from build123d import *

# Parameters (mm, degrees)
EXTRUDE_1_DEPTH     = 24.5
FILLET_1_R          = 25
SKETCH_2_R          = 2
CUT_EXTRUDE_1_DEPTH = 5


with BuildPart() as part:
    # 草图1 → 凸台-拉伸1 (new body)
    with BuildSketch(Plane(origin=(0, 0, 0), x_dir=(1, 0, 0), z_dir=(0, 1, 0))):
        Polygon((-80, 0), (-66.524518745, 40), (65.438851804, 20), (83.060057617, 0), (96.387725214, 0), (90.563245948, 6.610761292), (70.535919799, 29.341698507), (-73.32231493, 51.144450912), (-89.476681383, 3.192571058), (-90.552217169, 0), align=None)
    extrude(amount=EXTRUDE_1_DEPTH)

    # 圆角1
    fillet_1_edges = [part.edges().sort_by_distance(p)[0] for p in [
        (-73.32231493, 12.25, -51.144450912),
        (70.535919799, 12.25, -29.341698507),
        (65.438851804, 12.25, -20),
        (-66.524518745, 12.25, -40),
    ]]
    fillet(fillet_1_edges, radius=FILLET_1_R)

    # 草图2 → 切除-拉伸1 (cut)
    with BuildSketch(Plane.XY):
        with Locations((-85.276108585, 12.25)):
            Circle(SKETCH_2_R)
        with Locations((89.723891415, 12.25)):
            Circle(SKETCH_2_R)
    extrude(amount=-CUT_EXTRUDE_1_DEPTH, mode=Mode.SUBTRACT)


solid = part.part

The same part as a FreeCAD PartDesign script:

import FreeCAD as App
import Part
import Sketcher


def edges_at(feature, points):
    """Names of the edges that pass closest to the given points."""
    edges = feature.Shape.Edges
    near = lambda p: min(range(len(edges)), key=lambda i: edges[i].distToShape(Part.Vertex(*p))[0])
    return sorted({f"Edge{near(p) + 1}" for p in points})

doc = App.newDocument("Part")
body = doc.addObject("PartDesign::Body", "Body")

sketch1 = body.newObject("Sketcher::SketchObject", "Sketch")
sketch1.AttachmentSupport = (doc.getObject("XZ_Plane"), [""])
sketch1.MapMode = "FlatFace"
sketch1.addGeometry(Part.LineSegment(App.Vector(-80, 0, 0), App.Vector(-66.5, -40, 0)), False)
sketch1.addGeometry(Part.LineSegment(App.Vector(-66.5, -40, 0), App.Vector(65.4, -20, 0)), False)
sketch1.addGeometry(Part.LineSegment(App.Vector(65.4, -20, 0), App.Vector(83.1, 0, 0)), False)
sketch1.addGeometry(Part.LineSegment(App.Vector(83.1, 0, 0), App.Vector(96.4, 0, 0)), False)
sketch1.addGeometry(Part.LineSegment(App.Vector(96.4, 0, 0), App.Vector(90.6, -6.6, 0)), False)
sketch1.addGeometry(Part.LineSegment(App.Vector(90.6, -6.6, 0), App.Vector(70.5, -29.3, 0)), False)
sketch1.addGeometry(Part.LineSegment(App.Vector(70.5, -29.3, 0), App.Vector(-73.3, -51.1, 0)), False)
sketch1.addGeometry(Part.LineSegment(App.Vector(-73.3, -51.1, 0), App.Vector(-89.5, -3.2, 0)), False)
sketch1.addGeometry(Part.LineSegment(App.Vector(-89.5, -3.2, 0), App.Vector(-90.6, 0, 0)), False)
sketch1.addGeometry(Part.LineSegment(App.Vector(-90.6, 0, 0), App.Vector(-80, 0, 0)), False)
sketch1.addConstraint(Sketcher.Constraint("Coincident", 0, 2, 1, 1))
sketch1.addConstraint(Sketcher.Constraint("Coincident", 1, 2, 2, 1))
sketch1.addConstraint(Sketcher.Constraint("Coincident", 2, 2, 3, 1))
sketch1.addConstraint(Sketcher.Constraint("Coincident", 3, 2, 4, 1))
sketch1.addConstraint(Sketcher.Constraint("Coincident", 4, 2, 5, 1))
sketch1.addConstraint(Sketcher.Constraint("Coincident", 5, 2, 6, 1))
sketch1.addConstraint(Sketcher.Constraint("Coincident", 6, 2, 7, 1))
sketch1.addConstraint(Sketcher.Constraint("Coincident", 7, 2, 8, 1))
sketch1.addConstraint(Sketcher.Constraint("Coincident", 8, 2, 9, 1))
sketch1.addConstraint(Sketcher.Constraint("Coincident", 9, 2, 0, 1))
sketch1.addConstraint(Sketcher.Constraint("Horizontal", 3))
sketch1.addConstraint(Sketcher.Constraint("Horizontal", 9))
sketch1.addConstraint(Sketcher.Constraint("PointOnObject", 2, 2, -1))
sketch1.addConstraint(Sketcher.Constraint("PointOnObject", 8, 2, -1))
sketch1.addConstraint(Sketcher.Constraint("Parallel", 2, 4))
sketch1.addConstraint(Sketcher.Constraint("Parallel", 4, 5))
sketch1.addConstraint(Sketcher.Constraint("Parallel", 1, 6))
sketch1.addConstraint(Sketcher.Constraint("Parallel", 0, 7))
sketch1.addConstraint(Sketcher.Constraint("Parallel", 7, 8))
sketch1.addConstraint(Sketcher.Constraint("DistanceY", 0, 2, -1, 1, 40.0))
sketch1.addConstraint(Sketcher.Constraint("DistanceY", 1, 2, -1, 1, 20.0))
sketch1.addConstraint(Sketcher.Constraint("DistanceX", 9, 2, -1, 1, 80.0))
sketch1.addConstraint(Sketcher.Constraint("DistanceY", 5, 2, -1, 1, 29.341699))
sketch1.addConstraint(Sketcher.Constraint("DistanceX", 7, 2, 5, 2, 160.012601))
sketch1.addConstraint(Sketcher.Constraint("DistanceX", 8, 2, 0, 2, 24.027698))
sketch1.addConstraint(Sketcher.Constraint("Distance", 0, 42.208869))
sketch1.addConstraint(Sketcher.Constraint("Distance", 1, 133.470338))
sketch1.addConstraint(Sketcher.Constraint("Distance", 8, 3.36887))
sketch1.addConstraint(Sketcher.Constraint("DistanceX", 3, 1, 3, 2, 13.327668))
sketch1.addConstraint(Sketcher.Constraint("DistanceY", 4, 2, -1, 1, 6.610761))
pad1 = body.newObject("PartDesign::Pad", "Pad")
pad1.Profile = sketch1
pad1.Length = 24.5
pad1.Reversed = True
doc.recompute()

fillet = body.newObject("PartDesign::Fillet", "Fillet")
fillet.Base = (pad1, edges_at(pad1, [
    (-73.322, 12.25, -51.144),
    (70.536, 12.25, -29.342),
    (65.439, 12.25, -20),
    (-66.525, 12.25, -40),
]))
fillet.Radius = 25

sketch2 = body.newObject("Sketcher::SketchObject", "Sketch001")
sketch2.AttachmentSupport = (doc.getObject("XY_Plane"), [""])
sketch2.MapMode = "FlatFace"
sketch2.addGeometry(Part.Circle(App.Vector(-85.3, 12.2, 0), App.Vector(0, 0, 1), 2), False)
sketch2.addGeometry(Part.Circle(App.Vector(89.7, 12.2, 0), App.Vector(0, 0, 1), 2), False)
sketch2.addConstraint(Sketcher.Constraint("Equal", 0, 1))
sketch2.addConstraint(Sketcher.Constraint("Horizontal", 0, 3, 1, 3))
sketch2.addConstraint(Sketcher.Constraint("Diameter", 0, 4.0))
sketch2.addConstraint(Sketcher.Constraint("DistanceX", 0, 3, 1, 3, 175.0))
sketch2.addConstraint(Sketcher.Constraint("DistanceY", -1, 1, 0, 3, 12.25))
sketch2.addConstraint(Sketcher.Constraint("DistanceX", 0, 3, -1, 1, 85.276109))
pocket1 = body.newObject("PartDesign::Pocket", "Pocket")
pocket1.Profile = sketch2
pocket1.Length = 5

doc.recompute()
